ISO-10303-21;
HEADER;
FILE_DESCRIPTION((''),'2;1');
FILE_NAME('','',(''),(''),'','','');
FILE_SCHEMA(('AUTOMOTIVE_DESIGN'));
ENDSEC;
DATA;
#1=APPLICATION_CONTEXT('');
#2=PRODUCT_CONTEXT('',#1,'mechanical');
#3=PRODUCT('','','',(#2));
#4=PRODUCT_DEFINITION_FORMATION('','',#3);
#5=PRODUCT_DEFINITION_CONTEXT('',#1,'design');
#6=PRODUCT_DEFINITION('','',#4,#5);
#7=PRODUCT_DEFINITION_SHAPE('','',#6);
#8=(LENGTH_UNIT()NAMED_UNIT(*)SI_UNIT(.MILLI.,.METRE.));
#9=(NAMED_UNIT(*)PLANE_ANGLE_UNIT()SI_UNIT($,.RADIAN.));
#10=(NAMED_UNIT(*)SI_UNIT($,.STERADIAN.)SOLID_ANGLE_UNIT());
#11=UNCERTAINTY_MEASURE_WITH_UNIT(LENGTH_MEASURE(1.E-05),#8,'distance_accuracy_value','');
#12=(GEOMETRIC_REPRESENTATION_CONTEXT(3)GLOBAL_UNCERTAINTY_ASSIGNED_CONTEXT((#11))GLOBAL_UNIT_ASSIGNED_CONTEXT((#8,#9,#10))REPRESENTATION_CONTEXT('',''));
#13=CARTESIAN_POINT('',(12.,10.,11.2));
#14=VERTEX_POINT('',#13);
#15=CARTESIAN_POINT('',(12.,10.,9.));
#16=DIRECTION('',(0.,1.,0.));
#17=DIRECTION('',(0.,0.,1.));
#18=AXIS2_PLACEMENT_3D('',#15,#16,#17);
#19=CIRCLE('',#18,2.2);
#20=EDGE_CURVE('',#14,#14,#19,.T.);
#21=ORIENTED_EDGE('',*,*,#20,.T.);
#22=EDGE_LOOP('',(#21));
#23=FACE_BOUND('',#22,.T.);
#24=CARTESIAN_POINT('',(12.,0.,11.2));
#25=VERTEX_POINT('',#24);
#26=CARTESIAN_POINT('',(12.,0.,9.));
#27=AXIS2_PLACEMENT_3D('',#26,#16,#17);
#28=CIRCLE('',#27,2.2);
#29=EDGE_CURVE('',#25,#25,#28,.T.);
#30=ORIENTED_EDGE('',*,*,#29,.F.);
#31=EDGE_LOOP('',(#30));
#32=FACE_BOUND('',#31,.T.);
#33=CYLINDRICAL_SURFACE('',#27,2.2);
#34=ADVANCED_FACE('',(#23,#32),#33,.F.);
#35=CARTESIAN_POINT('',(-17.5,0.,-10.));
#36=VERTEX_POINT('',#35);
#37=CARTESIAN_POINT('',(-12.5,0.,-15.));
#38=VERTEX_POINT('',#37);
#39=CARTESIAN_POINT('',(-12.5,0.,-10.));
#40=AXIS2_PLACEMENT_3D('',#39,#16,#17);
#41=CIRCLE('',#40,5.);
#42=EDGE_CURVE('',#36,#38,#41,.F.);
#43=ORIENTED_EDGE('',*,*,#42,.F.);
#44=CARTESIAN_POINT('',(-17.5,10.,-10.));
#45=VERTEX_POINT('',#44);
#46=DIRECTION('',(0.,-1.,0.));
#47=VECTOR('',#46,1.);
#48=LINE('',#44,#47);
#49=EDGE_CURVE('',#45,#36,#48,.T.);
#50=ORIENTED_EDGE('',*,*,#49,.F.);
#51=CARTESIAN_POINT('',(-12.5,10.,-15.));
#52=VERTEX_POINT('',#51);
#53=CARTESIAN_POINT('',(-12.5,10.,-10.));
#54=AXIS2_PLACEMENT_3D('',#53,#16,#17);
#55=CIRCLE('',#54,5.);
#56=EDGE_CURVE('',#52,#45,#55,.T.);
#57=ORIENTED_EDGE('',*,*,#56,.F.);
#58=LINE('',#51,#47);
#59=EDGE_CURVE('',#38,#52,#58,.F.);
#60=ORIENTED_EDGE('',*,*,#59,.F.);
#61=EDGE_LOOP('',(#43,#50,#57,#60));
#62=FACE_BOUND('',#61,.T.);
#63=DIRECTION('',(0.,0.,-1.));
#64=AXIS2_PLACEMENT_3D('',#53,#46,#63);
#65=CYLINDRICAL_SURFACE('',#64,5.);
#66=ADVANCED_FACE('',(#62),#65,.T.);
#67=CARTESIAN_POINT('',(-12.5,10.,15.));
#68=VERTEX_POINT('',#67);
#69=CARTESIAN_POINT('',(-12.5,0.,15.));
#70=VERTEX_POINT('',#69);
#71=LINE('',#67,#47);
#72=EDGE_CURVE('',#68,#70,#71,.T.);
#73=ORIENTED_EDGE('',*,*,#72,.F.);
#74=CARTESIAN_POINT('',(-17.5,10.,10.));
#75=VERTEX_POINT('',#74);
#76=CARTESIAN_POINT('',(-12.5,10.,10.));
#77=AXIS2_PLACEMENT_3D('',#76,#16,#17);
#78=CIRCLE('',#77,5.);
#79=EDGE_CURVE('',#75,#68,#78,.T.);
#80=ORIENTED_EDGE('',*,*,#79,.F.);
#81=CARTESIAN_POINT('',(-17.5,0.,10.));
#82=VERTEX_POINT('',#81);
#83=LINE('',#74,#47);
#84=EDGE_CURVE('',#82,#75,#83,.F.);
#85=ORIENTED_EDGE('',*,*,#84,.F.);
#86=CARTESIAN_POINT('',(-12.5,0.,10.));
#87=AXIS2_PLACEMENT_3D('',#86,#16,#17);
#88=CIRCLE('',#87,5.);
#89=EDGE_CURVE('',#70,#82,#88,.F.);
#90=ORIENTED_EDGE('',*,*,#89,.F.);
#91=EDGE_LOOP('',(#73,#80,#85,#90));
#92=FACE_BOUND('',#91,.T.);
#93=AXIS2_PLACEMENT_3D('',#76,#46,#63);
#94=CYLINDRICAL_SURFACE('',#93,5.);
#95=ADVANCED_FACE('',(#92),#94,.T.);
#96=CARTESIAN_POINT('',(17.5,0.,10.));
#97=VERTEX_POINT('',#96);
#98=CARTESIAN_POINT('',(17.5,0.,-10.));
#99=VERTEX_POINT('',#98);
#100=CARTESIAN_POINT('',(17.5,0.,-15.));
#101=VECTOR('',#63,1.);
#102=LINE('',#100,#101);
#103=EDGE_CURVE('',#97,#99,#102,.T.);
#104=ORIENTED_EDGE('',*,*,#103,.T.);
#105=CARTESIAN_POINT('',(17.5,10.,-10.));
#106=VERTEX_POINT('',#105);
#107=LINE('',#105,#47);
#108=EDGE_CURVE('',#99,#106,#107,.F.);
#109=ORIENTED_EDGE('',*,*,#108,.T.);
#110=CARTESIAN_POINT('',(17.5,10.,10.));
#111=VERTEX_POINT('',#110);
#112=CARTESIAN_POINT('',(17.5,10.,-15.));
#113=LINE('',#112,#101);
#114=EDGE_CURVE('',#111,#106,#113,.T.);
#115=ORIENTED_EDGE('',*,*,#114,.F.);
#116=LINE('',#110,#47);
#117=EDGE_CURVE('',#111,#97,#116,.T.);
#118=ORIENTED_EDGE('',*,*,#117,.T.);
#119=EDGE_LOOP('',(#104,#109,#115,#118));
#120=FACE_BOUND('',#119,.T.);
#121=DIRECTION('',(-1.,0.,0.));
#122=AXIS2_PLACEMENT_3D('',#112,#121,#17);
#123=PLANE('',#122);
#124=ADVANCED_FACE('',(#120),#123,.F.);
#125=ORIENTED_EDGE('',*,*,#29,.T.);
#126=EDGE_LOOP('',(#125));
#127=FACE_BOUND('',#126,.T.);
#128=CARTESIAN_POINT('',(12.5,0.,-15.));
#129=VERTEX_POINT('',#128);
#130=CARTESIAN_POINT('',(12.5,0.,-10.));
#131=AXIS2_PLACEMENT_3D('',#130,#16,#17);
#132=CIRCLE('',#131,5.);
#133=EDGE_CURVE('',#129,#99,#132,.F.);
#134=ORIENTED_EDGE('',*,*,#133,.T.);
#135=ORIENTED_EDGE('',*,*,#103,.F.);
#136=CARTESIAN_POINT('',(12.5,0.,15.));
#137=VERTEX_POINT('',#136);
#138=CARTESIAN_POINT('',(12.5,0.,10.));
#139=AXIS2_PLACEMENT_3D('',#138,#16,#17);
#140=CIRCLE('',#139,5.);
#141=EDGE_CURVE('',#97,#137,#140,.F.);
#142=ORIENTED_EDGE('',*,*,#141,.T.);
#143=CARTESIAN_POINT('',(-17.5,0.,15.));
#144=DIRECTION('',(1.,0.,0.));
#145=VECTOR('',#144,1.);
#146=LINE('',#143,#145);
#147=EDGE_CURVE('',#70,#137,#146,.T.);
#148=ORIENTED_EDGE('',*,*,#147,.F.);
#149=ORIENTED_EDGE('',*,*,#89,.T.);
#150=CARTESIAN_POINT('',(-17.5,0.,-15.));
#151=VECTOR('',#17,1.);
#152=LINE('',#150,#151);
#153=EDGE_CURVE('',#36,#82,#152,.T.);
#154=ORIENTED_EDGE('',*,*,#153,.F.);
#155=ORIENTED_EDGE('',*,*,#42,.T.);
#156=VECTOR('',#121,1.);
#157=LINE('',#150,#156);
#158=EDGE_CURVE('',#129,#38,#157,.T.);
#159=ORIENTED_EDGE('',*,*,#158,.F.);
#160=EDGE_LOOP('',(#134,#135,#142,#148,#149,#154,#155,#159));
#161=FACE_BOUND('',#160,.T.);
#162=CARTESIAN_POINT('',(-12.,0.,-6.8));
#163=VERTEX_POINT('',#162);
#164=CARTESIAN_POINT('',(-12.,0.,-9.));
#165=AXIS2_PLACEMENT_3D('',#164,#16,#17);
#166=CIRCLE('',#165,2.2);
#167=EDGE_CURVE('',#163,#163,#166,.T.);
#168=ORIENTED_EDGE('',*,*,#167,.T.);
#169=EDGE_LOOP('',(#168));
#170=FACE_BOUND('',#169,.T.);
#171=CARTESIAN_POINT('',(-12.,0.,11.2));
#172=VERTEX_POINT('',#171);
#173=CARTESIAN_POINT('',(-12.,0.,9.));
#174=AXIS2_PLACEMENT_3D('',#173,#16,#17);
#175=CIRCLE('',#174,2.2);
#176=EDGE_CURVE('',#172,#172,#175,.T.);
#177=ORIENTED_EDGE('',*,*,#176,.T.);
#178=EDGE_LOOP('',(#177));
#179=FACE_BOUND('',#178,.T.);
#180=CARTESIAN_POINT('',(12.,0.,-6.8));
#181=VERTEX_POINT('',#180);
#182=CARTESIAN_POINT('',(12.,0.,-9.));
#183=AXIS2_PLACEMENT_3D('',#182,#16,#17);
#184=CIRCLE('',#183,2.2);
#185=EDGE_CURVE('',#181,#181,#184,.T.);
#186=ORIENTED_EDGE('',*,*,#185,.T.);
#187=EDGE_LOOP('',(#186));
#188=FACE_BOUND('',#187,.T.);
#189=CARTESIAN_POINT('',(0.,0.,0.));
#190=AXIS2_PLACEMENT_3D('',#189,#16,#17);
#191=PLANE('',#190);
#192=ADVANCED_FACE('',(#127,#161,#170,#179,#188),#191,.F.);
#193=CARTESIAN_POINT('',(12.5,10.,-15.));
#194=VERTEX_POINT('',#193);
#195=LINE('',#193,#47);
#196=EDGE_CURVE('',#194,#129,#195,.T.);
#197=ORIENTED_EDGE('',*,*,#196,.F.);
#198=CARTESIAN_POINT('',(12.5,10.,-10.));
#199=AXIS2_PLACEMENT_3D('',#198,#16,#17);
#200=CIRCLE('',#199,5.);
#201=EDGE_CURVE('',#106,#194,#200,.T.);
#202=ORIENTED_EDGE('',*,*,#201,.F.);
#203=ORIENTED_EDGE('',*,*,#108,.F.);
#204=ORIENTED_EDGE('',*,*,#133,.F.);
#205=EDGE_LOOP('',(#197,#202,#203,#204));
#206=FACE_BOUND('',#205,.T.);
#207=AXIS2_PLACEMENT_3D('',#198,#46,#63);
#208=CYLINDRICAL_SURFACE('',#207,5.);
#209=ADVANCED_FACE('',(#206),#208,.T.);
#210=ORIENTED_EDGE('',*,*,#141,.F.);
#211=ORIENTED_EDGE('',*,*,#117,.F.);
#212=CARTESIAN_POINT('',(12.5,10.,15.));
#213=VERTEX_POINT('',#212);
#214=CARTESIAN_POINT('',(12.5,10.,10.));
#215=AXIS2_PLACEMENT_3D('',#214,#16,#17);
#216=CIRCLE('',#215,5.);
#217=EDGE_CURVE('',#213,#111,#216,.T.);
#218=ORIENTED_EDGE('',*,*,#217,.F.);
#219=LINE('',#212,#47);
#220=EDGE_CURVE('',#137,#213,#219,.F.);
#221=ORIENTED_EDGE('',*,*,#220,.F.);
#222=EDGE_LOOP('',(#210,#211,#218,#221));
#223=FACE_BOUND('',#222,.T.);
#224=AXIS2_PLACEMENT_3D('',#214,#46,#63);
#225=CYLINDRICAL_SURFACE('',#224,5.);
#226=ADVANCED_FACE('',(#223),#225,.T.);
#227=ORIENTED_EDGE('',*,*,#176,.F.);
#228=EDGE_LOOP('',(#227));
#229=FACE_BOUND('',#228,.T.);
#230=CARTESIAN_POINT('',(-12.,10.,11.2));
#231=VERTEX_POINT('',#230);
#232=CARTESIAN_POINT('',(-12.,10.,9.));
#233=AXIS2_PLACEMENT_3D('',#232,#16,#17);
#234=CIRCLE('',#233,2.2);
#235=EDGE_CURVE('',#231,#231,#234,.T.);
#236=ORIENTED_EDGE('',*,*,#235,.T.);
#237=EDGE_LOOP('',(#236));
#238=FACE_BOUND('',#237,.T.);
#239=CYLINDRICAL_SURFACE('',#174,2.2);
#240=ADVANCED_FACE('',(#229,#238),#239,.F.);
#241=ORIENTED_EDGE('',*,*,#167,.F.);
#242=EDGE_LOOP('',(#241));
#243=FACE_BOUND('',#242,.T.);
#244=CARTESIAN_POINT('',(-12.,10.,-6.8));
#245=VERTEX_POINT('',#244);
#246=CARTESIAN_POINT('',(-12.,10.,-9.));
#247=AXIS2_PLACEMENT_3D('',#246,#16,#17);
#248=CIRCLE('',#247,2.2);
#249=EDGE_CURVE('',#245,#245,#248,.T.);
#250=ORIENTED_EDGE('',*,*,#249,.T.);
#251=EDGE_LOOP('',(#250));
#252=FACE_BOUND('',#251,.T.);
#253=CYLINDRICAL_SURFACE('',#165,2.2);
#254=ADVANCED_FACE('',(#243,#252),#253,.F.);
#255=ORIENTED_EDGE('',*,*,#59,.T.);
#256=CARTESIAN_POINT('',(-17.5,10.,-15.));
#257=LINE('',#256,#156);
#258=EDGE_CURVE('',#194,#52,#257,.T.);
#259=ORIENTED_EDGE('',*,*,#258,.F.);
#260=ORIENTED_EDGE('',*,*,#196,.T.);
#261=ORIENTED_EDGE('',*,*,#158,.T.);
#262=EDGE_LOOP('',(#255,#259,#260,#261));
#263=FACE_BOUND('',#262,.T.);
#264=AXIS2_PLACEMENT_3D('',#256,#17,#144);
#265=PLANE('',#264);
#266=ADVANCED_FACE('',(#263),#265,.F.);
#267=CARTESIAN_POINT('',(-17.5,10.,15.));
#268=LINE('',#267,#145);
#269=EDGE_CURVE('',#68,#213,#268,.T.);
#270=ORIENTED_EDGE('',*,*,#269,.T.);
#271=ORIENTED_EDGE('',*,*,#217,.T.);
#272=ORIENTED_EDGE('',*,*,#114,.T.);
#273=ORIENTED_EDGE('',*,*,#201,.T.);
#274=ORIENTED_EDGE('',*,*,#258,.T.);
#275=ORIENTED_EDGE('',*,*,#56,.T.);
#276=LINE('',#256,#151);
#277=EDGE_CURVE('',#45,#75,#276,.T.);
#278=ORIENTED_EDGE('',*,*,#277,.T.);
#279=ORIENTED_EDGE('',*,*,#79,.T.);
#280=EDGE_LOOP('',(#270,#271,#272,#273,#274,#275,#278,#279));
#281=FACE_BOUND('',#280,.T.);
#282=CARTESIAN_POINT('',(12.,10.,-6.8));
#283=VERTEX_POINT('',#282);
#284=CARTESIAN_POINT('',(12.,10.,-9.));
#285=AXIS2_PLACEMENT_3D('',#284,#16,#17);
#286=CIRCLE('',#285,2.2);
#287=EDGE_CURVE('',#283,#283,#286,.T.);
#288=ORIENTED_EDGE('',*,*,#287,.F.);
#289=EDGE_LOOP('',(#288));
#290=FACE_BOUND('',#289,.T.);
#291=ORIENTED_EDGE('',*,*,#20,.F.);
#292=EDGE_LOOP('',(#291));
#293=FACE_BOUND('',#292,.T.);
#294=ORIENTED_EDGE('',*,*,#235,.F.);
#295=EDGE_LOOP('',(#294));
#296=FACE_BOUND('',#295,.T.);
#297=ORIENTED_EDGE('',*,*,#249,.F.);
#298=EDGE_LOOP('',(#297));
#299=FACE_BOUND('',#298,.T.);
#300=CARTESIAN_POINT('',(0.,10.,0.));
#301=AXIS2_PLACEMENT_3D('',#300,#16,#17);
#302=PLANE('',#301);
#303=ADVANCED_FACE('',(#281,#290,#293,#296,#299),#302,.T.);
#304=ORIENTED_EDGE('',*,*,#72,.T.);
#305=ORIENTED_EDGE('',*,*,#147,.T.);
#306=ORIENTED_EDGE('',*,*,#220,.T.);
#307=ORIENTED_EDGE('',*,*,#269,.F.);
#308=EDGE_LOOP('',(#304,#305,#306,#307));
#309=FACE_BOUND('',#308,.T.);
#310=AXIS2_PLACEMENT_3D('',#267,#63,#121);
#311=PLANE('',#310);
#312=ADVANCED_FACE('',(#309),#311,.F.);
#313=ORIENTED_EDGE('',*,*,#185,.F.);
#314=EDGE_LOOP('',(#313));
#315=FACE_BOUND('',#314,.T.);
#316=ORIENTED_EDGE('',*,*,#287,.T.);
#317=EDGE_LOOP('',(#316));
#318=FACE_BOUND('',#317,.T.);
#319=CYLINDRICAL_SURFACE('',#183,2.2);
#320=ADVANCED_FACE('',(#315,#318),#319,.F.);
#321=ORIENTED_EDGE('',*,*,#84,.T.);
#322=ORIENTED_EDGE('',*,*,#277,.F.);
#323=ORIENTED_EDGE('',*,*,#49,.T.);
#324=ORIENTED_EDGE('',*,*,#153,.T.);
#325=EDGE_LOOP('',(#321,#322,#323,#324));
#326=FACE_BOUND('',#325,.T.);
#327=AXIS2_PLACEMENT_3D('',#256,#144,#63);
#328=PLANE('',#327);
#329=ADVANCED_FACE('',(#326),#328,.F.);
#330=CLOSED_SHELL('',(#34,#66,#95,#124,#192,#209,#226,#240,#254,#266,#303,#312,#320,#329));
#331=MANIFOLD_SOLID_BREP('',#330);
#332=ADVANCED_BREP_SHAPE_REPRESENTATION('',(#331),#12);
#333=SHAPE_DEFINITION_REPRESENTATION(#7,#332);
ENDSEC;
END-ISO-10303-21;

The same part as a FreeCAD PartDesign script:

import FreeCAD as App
import Part
import Sketcher
from FreeCAD import Vector


def edges_at(feature, points):
    """Names of the edges that pass closest to the given points."""
    edges = feature.Shape.Edges
    near = lambda p: min(range(len(edges)), key=lambda i: edges[i].distToShape(Part.Vertex(*p))[0])
    return sorted({f"Edge{near(p) + 1}" for p in points})


def add_polygon(sketch, points):
    """Adds a closed chain of lines whose ends are joined by coincident constraints."""
    first, n = sketch.GeometryCount, len(points)
    for a, b in zip(points, points[1:] + points[:1]):
        sketch.addGeometry(Part.LineSegment(App.Vector(*a, 0), App.Vector(*b, 0)), False)
    for i in range(n):
        sketch.addConstraint(Sketcher.Constraint("Coincident", first + i, 2, first + (i + 1) % n, 1))

doc = App.newDocument("Part")
body = doc.addObject("PartDesign::Body", "Body")

# Sketch on XZ plane
sketch1 = body.newObject("Sketcher::SketchObject", "Sketch")
sketch1.AttachmentSupport = (doc.getObject("XZ_Plane"), [""])
sketch1.MapMode = "FlatFace"
add_polygon(sketch1, [(-17.5, -15), (-17.5, 15), (17.5, 15), (17.5, -15)])  # lines 0-3
sketch1.addConstraint(Sketcher.Constraint("Vertical", 0))
sketch1.addConstraint(Sketcher.Constraint("Horizontal", 1))
sketch1.addConstraint(Sketcher.Constraint("Vertical", 2))
sketch1.addConstraint(Sketcher.Constraint("Horizontal", 3))
sketch1.addConstraint(Sketcher.Constraint("Symmetric", 0, 2, 2, 2, -1, 1))
sketch1.addConstraint(Sketcher.Constraint("DistanceX", 1, 1, 1, 2, 35.0))
sketch1.addConstraint(Sketcher.Constraint("DistanceY", 0, 1, 0, 2, 30.0))
pad1 = body.newObject("PartDesign::Pad", "Pad")
pad1.Profile = sketch1
pad1.Length = 10
pad1.Reversed = True

# Sketch on XZ plane
sketch2 = body.newObject("Sketcher::SketchObject", "Sketch001")
sketch2.AttachmentSupport = (doc.getObject("XZ_Plane"), [""])
sketch2.MapMode = "FlatFace"
sketch2.AttachmentOffset = App.Placement(Vector(0, 0, -10), App.Rotation())
sketch2.addGeometry(Part.Circle(Vector(-12, -9, 0), Vector(0, 0, 1), 2.2), False)
sketch2.addGeometry(Part.Circle(Vector(12, -9, 0), Vector(0, 0, 1), 2.2), False)
sketch2.addGeometry(Part.Circle(Vector(12, 9, 0), Vector(0, 0, 1), 2.2), False)
sketch2.addGeometry(Part.Circle(Vector(-12, 9, 0), Vector(0, 0, 1), 2.2), False)
sketch2.addConstraint(Sketcher.Constraint("Equal", 0, 1))
sketch2.addConstraint(Sketcher.Constraint("Equal", 1, 2))
sketch2.addConstraint(Sketcher.Constraint("Equal", 2, 3))
sketch2.addConstraint(Sketcher.Constraint("Symmetric", 0, 3, 2, 3, -1, 1))
sketch2.addConstraint(Sketcher.Constraint("Symmetric", 1, 3, 3, 3, -1, 1))
sketch2.addConstraint(Sketcher.Constraint("Symmetric", 0, 3, 1, 3, -2))
sketch2.addConstraint(Sketcher.Constraint("Diameter", 0, 4.4))
sketch2.addConstraint(Sketcher.Constraint("DistanceX", 0, 3, -1, 1, 12.0))
sketch2.addConstraint(Sketcher.Constraint("DistanceY", 0, 3, -1, 1, 9.0))
pocket1 = body.newObject("PartDesign::Pocket", "Pocket")
pocket1.Profile = sketch2
pocket1.Type = "ThroughAll"
pocket1.Reversed = True
doc.recompute()

fillet = body.newObject("PartDesign::Fillet", "Fillet")
fillet.Base = (pocket1, edges_at(pocket1, [
    (17.5, 5, 15),
    (-17.5, 5, 15),
    (-17.5, 5, -15),
    (17.5, 5, -15),
]))
fillet.Radius = 5

doc.recompute()
